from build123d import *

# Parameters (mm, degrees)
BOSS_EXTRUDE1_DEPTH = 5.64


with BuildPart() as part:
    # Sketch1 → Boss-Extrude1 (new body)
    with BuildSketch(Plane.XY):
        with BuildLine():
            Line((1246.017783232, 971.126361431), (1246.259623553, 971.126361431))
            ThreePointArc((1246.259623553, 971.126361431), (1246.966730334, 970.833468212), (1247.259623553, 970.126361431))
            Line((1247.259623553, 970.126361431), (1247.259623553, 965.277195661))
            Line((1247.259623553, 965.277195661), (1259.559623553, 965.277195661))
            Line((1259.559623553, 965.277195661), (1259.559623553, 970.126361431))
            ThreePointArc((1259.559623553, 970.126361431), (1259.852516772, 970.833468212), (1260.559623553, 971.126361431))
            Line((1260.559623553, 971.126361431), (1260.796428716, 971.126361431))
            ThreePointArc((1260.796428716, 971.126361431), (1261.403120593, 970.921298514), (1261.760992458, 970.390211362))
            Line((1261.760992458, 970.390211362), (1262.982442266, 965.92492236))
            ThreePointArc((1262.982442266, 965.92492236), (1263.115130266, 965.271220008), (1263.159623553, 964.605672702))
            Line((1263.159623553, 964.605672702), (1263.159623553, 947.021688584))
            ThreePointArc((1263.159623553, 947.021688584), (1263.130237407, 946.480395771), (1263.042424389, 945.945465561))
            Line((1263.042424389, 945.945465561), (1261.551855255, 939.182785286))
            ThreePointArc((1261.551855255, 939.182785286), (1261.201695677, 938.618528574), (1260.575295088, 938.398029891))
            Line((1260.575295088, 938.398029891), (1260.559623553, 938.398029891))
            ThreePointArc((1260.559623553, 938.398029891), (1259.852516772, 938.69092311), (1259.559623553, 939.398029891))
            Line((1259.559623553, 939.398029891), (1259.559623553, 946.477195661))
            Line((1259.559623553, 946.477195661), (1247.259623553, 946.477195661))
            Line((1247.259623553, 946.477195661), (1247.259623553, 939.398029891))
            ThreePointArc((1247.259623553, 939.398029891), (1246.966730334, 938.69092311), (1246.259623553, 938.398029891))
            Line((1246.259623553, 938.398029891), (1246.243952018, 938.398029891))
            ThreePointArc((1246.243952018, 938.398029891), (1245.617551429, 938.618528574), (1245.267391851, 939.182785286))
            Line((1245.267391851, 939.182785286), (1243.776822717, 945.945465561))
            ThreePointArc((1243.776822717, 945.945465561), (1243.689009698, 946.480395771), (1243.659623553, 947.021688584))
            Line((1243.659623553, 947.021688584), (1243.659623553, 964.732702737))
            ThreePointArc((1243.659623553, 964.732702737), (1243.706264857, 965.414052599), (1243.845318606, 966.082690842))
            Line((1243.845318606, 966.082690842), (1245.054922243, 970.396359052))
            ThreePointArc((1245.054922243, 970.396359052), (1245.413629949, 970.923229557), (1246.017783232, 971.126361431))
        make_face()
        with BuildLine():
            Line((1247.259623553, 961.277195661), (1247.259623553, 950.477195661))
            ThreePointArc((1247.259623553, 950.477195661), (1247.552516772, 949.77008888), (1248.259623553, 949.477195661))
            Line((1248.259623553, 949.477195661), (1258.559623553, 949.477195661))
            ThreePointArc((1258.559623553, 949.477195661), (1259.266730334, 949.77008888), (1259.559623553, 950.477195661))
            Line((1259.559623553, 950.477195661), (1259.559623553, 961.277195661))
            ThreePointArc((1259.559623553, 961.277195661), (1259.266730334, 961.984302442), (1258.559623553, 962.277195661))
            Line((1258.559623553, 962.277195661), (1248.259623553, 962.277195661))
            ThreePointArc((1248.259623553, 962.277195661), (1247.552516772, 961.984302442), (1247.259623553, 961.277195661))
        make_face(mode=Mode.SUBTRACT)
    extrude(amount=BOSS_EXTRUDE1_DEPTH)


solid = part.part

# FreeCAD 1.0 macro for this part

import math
import FreeCAD as App
import Part
import Sketcher

V = App.Vector

doc = App.newDocument("Part")
params = doc.addObject("Spreadsheet::Sheet", "Params")
for row, (alias, value) in enumerate([
    ("sketch1_radius", "1 mm"),
    ("sketch1_radius2", "5 mm"),
    ("sketch1_width", "12.3 mm"),
    ("sketch1_height", "10.8 mm"),
    ("pad1_length", "5.64 mm"),
], start=1):
    params.set(f"A{row}", alias)
    params.set(f"B{row}", "=" + value)
    params.setAlias(f"B{row}", alias)

body = doc.addObject("PartDesign::Body", "Body")

# Sketch on XY plane
sketch1 = body.newObject("Sketcher::SketchObject", "Sketch")
sketch1.AttachmentSupport = (doc.getObject("XY_Plane"), [""])
sketch1.MapMode = "FlatFace"
sketch1.addGeometry([
    Part.LineSegment(V(1246.26, 971.126, 0), V(1246.018, 971.126, 0)),  # 0
    Part.ArcOfCircle(Part.Circle(V(1246.018, 970.126, 0), V(0, 0, 1), 1), math.radians(90), math.radians(164)),  # 1
    Part.LineSegment(V(1245.055, 970.396, 0), V(1243.845, 966.083, 0)),  # 2
    Part.ArcOfCircle(Part.Circle(V(1248.66, 964.733, 0), V(0, 0, 1), 5), math.radians(164.34), math.radians(180)),  # 3
    Part.LineSegment(V(1243.66, 964.733, 0), V(1243.66, 947.022, 0)),  # 4
    Part.ArcOfCircle(Part.Circle(V(1248.66, 947.022, 0), V(0, 0, 1), 5), math.radians(180), math.radians(192.43)),  # 5
    Part.LineSegment(V(1243.777, 945.945, 0), V(1245.267, 939.183, 0)),  # 6
    Part.ArcOfCircle(Part.Circle(V(1246.244, 939.398, 0), V(0, 0, 1), 1), math.radians(-168), math.radians(-90)),  # 7
    Part.LineSegment(V(1246.244, 938.398, 0), V(1246.26, 938.398, 0)),  # 8
    Part.ArcOfCircle(Part.Circle(V(1246.26, 939.398, 0), V(0, 0, 1), 1), math.radians(-90), math.radians(0)),  # 9
    Part.LineSegment(V(1247.26, 939.398, 0), V(1247.26, 946.477, 0)),  # 10
    Part.LineSegment(V(1247.26, 946.477, 0), V(1259.56, 946.477, 0)),  # 11
    Part.LineSegment(V(1259.56, 946.477, 0), V(1259.56, 939.398, 0)),  # 12
    Part.ArcOfCircle(Part.Circle(V(1260.56, 939.398, 0), V(0, 0, 1), 1), math.radians(-180), math.radians(-90)),  # 13
    Part.LineSegment(V(1260.56, 938.398, 0), V(1260.575, 938.398, 0)),  # 14
    Part.ArcOfCircle(Part.Circle(V(1260.575, 939.398, 0), V(0, 0, 1), 1), math.radians(-90), math.radians(-12)),  # 15
    Part.LineSegment(V(1261.552, 939.183, 0), V(1263.042, 945.945, 0)),  # 16
    Part.ArcOfCircle(Part.Circle(V(1258.16, 947.022, 0), V(0, 0, 1), 5), math.radians(-12.43), math.radians(0)),  # 17
    Part.LineSegment(V(1263.16, 947.022, 0), V(1263.16, 964.606, 0)),  # 18
    Part.ArcOfCircle(Part.Circle(V(1258.16, 964.606, 0), V(0, 0, 1), 5), math.radians(0), math.radians(15.3)),  # 19
    Part.LineSegment(V(1262.982, 965.925, 0), V(1261.761, 970.39, 0)),  # 20
    Part.ArcOfCircle(Part.Circle(V(1260.796, 970.126, 0), V(0, 0, 1), 1), math.radians(15), math.radians(90)),  # 21
    Part.LineSegment(V(1260.796, 971.126, 0), V(1260.56, 971.126, 0)),  # 22
    Part.ArcOfCircle(Part.Circle(V(1260.56, 970.126, 0), V(0, 0, 1), 1), math.radians(90), math.radians(180)),  # 23
    Part.LineSegment(V(1259.56, 970.126, 0), V(1259.56, 965.277, 0)),  # 24
    Part.LineSegment(V(1259.56, 965.277, 0), V(1247.26, 965.277, 0)),  # 25
    Part.LineSegment(V(1247.26, 965.277, 0), V(1247.26, 970.126, 0)),  # 26
    Part.ArcOfCircle(Part.Circle(V(1246.26, 970.126, 0), V(0, 0, 1), 1), math.radians(0), math.radians(90)),  # 27
    Part.ArcOfCircle(Part.Circle(V(1248.26, 961.277, 0), V(0, 0, 1), 1), math.radians(90), math.radians(180)),  # 28
    Part.LineSegment(V(1248.26, 962.277, 0), V(1258.56, 962.277, 0)),  # 29
    Part.ArcOfCircle(Part.Circle(V(1258.56, 961.277, 0), V(0, 0, 1), 1), math.radians(0), math.radians(90)),  # 30
    Part.LineSegment(V(1259.56, 961.277, 0), V(1259.56, 950.477, 0)),  # 31
    Part.ArcOfCircle(Part.Circle(V(1258.56, 950.477, 0), V(0, 0, 1), 1), math.radians(-90), math.radians(0)),  # 32
    Part.LineSegment(V(1258.56, 949.477, 0), V(1248.26, 949.477, 0)),  # 33
    Part.ArcOfCircle(Part.Circle(V(1248.26, 950.477, 0), V(0, 0, 1), 1), math.radians(-180), math.radians(-90)),  # 34
    Part.LineSegment(V(1247.26, 950.477, 0), V(1247.26, 961.277, 0)),  # 35
], False)
sketch1.addConstraint([
    Sketcher.Constraint("Tangent", 0, 2, 1, 1),
    Sketcher.Constraint("Tangent", 1, 2, 2, 1),
    Sketcher.Constraint("Tangent", 2, 2, 3, 1),
    Sketcher.Constraint("Tangent", 3, 2, 4, 1),
    Sketcher.Constraint("Tangent", 4, 2, 5, 1),
    Sketcher.Constraint("Tangent", 5, 2, 6, 1),
    Sketcher.Constraint("Tangent", 6, 2, 7, 1),
    Sketcher.Constraint("Tangent", 7, 2, 8, 1),
    Sketcher.Constraint("Tangent", 8, 2, 9, 1),
    Sketcher.Constraint("Tangent", 9, 2, 10, 1),
    Sketcher.Constraint("Coincident", 10, 2, 11, 1),
    Sketcher.Constraint("Coincident", 11, 2, 12, 1),
    Sketcher.Constraint("Tangent", 12, 2, 13, 1),
    Sketcher.Constraint("Tangent", 13, 2, 14, 1),
    Sketcher.Constraint("Tangent", 14, 2, 15, 1),
    Sketcher.Constraint("Tangent", 15, 2, 16, 1),
    Sketcher.Constraint("Tangent", 16, 2, 17, 1),
    Sketcher.Constraint("Tangent", 17, 2, 18, 1),
    Sketcher.Constraint("Tangent", 18, 2, 19, 1),
    Sketcher.Constraint("Tangent", 19, 2, 20, 1),
    Sketcher.Constraint("Tangent", 20, 2, 21, 1),
    Sketcher.Constraint("Tangent", 21, 2, 22, 1),
    Sketcher.Constraint("Tangent", 22, 2, 23, 1),
    Sketcher.Constraint("Tangent", 23, 2, 24, 1),
    Sketcher.Constraint("Coincident", 24, 2, 25, 1),
    Sketcher.Constraint("Coincident", 25, 2, 26, 1),
    Sketcher.Constraint("Tangent", 26, 2, 27, 1),
    Sketcher.Constraint("Tangent", 27, 2, 0, 1),
    Sketcher.Constraint("Tangent", 28, 1, 29, 1),
    Sketcher.Constraint("Tangent", 29, 2, 30, 2),
    Sketcher.Constraint("Tangent", 30, 1, 31, 1),
    Sketcher.Constraint("Tangent", 31, 2, 32, 2),
    Sketcher.Constraint("Tangent", 32, 1, 33, 1),
    Sketcher.Constraint("Tangent", 33, 2, 34, 2),
    Sketcher.Constraint("Tangent", 34, 1, 35, 1),
    Sketcher.Constraint("Tangent", 35, 2, 28, 2),
    Sketcher.Constraint("Horizontal", 0),
    Sketcher.Constraint("Vertical", 4),
    Sketcher.Constraint("Horizontal", 8),
    Sketcher.Constraint("Vertical", 10),
    Sketcher.Constraint("Horizontal", 11),
    Sketcher.Constraint("Vertical", 12),
    Sketcher.Constraint("Horizontal", 14),
    Sketcher.Constraint("Vertical", 18),
    Sketcher.Constraint("Horizontal", 22),
    Sketcher.Constraint("Vertical", 24),
    Sketcher.Constraint("Horizontal", 25),
    Sketcher.Constraint("Vertical", 26),
    Sketcher.Constraint("Horizontal", 29),
    Sketcher.Constraint("Vertical", 31),
    Sketcher.Constraint("Horizontal", 33),
    Sketcher.Constraint("Vertical", 35),
    Sketcher.Constraint("Equal", 3, 5),
    Sketcher.Constraint("Equal", 1, 7),
    Sketcher.Constraint("Equal", 7, 9),
    Sketcher.Constraint("Equal", 9, 13),
    Sketcher.Constraint("Equal", 13, 15),
    Sketcher.Constraint("Equal", 5, 17),
    Sketcher.Constraint("Equal", 17, 19),
    Sketcher.Constraint("Equal", 15, 21),
    Sketcher.Constraint("Equal", 21, 23),
    Sketcher.Constraint("Equal", 23, 27),
    Sketcher.Constraint("Equal", 27, 28),
    Sketcher.Constraint("Equal", 28, 30),
    Sketcher.Constraint("Equal", 30, 32),
    Sketcher.Constraint("Equal", 32, 34),
    Sketcher.Constraint("Horizontal", 9, 3, 13, 3),
    Sketcher.Constraint("Horizontal", 5, 3, 17, 3),
    Sketcher.Constraint("Horizontal", 1, 3, 21, 3),
    Sketcher.Constraint("Horizontal", 6, 2, 15, 2),
    Sketcher.Constraint("Vertical", 13, 3, 23, 3),
    Sketcher.Constraint("Vertical", 9, 3, 27, 3),
    Sketcher.Constraint("Vertical", 24, 2, 30, 1),
    Sketcher.Constraint("Vertical", 26, 2, 34, 1),
    Sketcher.Constraint("Equal", 8, 14),
    Sketcher.Constraint("Radius", 1, 1.0),
    Sketcher.Constraint("Radius", 3, 5.0),
    Sketcher.Constraint("DistanceX", 11, 1, 11, 2, 12.3),
    Sketcher.Constraint("DistanceY", 31, 2, 31, 1, 10.8),
    Sketcher.Constraint("DistanceY", 10, 2, 34, 3, 4.0),
    Sketcher.Constraint("DistanceY", 30, 3, 24, 2, 4.0),
    Sketcher.Constraint("DistanceX", 9, 3, 5, 3, 2.4),
    Sketcher.Constraint("Distance", 6, 6.925001),
    Sketcher.Constraint("DistanceX", 0, 2, 0, 1, 0.24184),
    Sketcher.Constraint("DistanceX", 8, 1, 8, 2, 0.015672),
    Sketcher.Constraint("DistanceX", 1, 2, 27, 3, 1.204701),
    Sketcher.Constraint("DistanceX", 22, 2, 22, 1, 0.236805),
    Sketcher.Constraint("DistanceY", 4, 2, 4, 1, 17.711014),
    Sketcher.Constraint("DistanceY", 10, 1, 10, 2, 7.079166),
    Sketcher.Constraint("DistanceY", 18, 1, 18, 2, 17.583984),
    Sketcher.Constraint("DistanceY", -1, 1, 1, 3, 970.126361),
    Sketcher.Constraint("DistanceX", -1, 1, 21, 3, 1260.796429),
])
sketch1.setExpression("Constraints[75]", "Params.sketch1_radius")
sketch1.setExpression("Constraints[76]", "Params.sketch1_radius2")
sketch1.setExpression("Constraints[77]", "Params.sketch1_width")
sketch1.setExpression("Constraints[78]", "Params.sketch1_height")
pad1 = body.newObject("PartDesign::Pad", "Pad")
pad1.Profile = sketch1
pad1.setExpression("Length", "Params.pad1_length")

doc.recompute()
